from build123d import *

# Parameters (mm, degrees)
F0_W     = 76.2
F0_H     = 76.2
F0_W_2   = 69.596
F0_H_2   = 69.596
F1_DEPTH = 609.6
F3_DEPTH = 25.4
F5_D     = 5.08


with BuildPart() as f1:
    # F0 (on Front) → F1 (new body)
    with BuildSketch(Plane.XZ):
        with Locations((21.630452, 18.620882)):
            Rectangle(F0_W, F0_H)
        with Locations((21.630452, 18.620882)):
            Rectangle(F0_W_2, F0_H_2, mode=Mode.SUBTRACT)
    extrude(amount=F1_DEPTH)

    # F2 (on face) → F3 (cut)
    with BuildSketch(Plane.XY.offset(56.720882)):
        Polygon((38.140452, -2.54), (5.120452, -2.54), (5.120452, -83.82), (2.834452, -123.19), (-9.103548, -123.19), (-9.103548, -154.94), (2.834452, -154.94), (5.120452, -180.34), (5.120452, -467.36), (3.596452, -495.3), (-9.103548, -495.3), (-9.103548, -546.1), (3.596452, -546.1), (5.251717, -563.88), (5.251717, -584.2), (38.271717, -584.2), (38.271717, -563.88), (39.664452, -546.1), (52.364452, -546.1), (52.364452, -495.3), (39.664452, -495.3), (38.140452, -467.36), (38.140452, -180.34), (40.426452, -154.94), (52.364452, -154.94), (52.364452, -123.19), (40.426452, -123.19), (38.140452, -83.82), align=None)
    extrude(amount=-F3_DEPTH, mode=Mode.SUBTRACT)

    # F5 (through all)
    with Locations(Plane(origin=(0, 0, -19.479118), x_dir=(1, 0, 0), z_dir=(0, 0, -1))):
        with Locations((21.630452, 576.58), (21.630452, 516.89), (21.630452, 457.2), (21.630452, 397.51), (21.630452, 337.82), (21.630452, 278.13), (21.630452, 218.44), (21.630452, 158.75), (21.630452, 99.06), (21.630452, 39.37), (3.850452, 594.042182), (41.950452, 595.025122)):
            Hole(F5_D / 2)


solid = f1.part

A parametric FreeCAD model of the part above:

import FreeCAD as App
import Part
import Sketcher
Q = App.Units.Quantity

doc = App.newDocument("Part")
body = doc.addObject("PartDesign::Body", "Body")

# Sketch on XZ plane
sketch1 = doc.addObject("Sketcher::SketchObject", "Sketch")
body.addObject(sketch1)
sketch1.AttachmentSupport = (doc.XZ_Plane, [""])
sketch1.MapMode = "FlatFace"
sketch1.addGeometry([
    Part.LineSegment(App.Vector(-16, 57, 0), App.Vector(-16, -19, 0)),  # 0
    Part.LineSegment(App.Vector(-16, -19, 0), App.Vector(60, -19, 0)),  # 1
    Part.LineSegment(App.Vector(60, -19, 0), App.Vector(60, 57, 0)),  # 2
    Part.LineSegment(App.Vector(60, 57, 0), App.Vector(-16, 57, 0)),  # 3
    Part.LineSegment(App.Vector(56, -16, 0), App.Vector(-13, -16, 0)),  # 4
    Part.LineSegment(App.Vector(-13, -16, 0), App.Vector(-13, 53, 0)),  # 5
    Part.LineSegment(App.Vector(-13, 53, 0), App.Vector(56, 53, 0)),  # 6
    Part.LineSegment(App.Vector(56, 53, 0), App.Vector(56, -16, 0)),  # 7
], False)
sketch1.addConstraint([
    Sketcher.Constraint("Coincident", 0, 2, 1, 1),
    Sketcher.Constraint("Coincident", 1, 2, 2, 1),
    Sketcher.Constraint("Coincident", 2, 2, 3, 1),
    Sketcher.Constraint("Coincident", 3, 2, 0, 1),
    Sketcher.Constraint("Coincident", 4, 2, 5, 1),
    Sketcher.Constraint("Coincident", 5, 2, 6, 1),
    Sketcher.Constraint("Coincident", 6, 2, 7, 1),
    Sketcher.Constraint("Coincident", 7, 2, 4, 1),
    Sketcher.Constraint("Vertical", 0),
    Sketcher.Constraint("Horizontal", 1),
    Sketcher.Constraint("Vertical", 2),
    Sketcher.Constraint("Horizontal", 3),
    Sketcher.Constraint("Horizontal", 4),
    Sketcher.Constraint("Vertical", 5),
    Sketcher.Constraint("Horizontal", 6),
    Sketcher.Constraint("Vertical", 7),
    Sketcher.Constraint("Equal", 3, 0),
    Sketcher.Constraint("Equal", 6, 5),
    Sketcher.Constraint("DistanceX", 1, 1, 1, 2, Q("3 in")),
    Sketcher.Constraint("DistanceX", 4, 2, 4, 1, Q("2.74 in")),
    Sketcher.Constraint("DistanceX", 0, 2, 4, 2, Q("0.13 in")),
    Sketcher.Constraint("DistanceY", 0, 2, 4, 2, Q("0.13 in")),
    Sketcher.Constraint("DistanceY", 4, 2, -1, 1, Q("16.177118 mm")),
    Sketcher.Constraint("DistanceX", 0, 2, -1, 1, Q("16.469548 mm")),
])
pad1 = doc.addObject("PartDesign::Pad", "Pad")
body.addObject(pad1)
pad1.Profile = sketch1
pad1.Length = Q("24 in")

# Sketch on XY plane
sketch2 = doc.addObject("Sketcher::SketchObject", "Sketch001")
body.addObject(sketch2)
sketch2.AttachmentSupport = (doc.XY_Plane, [""])
sketch2.MapMode = "FlatFace"
sketch2.AttachmentOffset = App.Placement(App.Vector(0, 0, 56.720882), App.Rotation())
sketch2.addGeometry([
    Part.LineSegment(App.Vector(38, -3, 0), App.Vector(5, -3, 0)),  # 0
    Part.LineSegment(App.Vector(5, -3, 0), App.Vector(5, -84, 0)),  # 1
    Part.LineSegment(App.Vector(5, -84, 0), App.Vector(3, -123, 0)),  # 2
    Part.LineSegment(App.Vector(3, -123, 0), App.Vector(-9, -123, 0)),  # 3
    Part.LineSegment(App.Vector(-9, -123, 0), App.Vector(-9, -155, 0)),  # 4
    Part.LineSegment(App.Vector(-9, -155, 0), App.Vector(3, -155, 0)),  # 5
    Part.LineSegment(App.Vector(3, -155, 0), App.Vector(5, -180, 0)),  # 6
    Part.LineSegment(App.Vector(5, -180, 0), App.Vector(5, -467, 0)),  # 7
    Part.LineSegment(App.Vector(5, -467, 0), App.Vector(4, -495, 0)),  # 8
    Part.LineSegment(App.Vector(4, -495, 0), App.Vector(-9, -495, 0)),  # 9
    Part.LineSegment(App.Vector(-9, -495, 0), App.Vector(-9, -546, 0)),  # 10
    Part.LineSegment(App.Vector(-9, -546, 0), App.Vector(4, -546, 0)),  # 11
    Part.LineSegment(App.Vector(4, -546, 0), App.Vector(5, -564, 0)),  # 12
    Part.LineSegment(App.Vector(5, -564, 0), App.Vector(5, -584, 0)),  # 13
    Part.LineSegment(App.Vector(5, -584, 0), App.Vector(38, -584, 0)),  # 14
    Part.LineSegment(App.Vector(38, -584, 0), App.Vector(38, -564, 0)),  # 15
    Part.LineSegment(App.Vector(38, -564, 0), App.Vector(40, -546, 0)),  # 16
    Part.LineSegment(App.Vector(40, -546, 0), App.Vector(52, -546, 0)),  # 17
    Part.LineSegment(App.Vector(52, -546, 0), App.Vector(52, -495, 0)),  # 18
    Part.LineSegment(App.Vector(52, -495, 0), App.Vector(40, -495, 0)),  # 19
    Part.LineSegment(App.Vector(40, -495, 0), App.Vector(38, -467, 0)),  # 20
    Part.LineSegment(App.Vector(38, -467, 0), App.Vector(38, -180, 0)),  # 21
    Part.LineSegment(App.Vector(38, -180, 0), App.Vector(40, -155, 0)),  # 22
    Part.LineSegment(App.Vector(40, -155, 0), App.Vector(52, -155, 0)),  # 23
    Part.LineSegment(App.Vector(52, -155, 0), App.Vector(52, -123, 0)),  # 24
    Part.LineSegment(App.Vector(52, -123, 0), App.Vector(40, -123, 0)),  # 25
    Part.LineSegment(App.Vector(40, -123, 0), App.Vector(38, -84, 0)),  # 26
    Part.LineSegment(App.Vector(38, -84, 0), App.Vector(38, -3, 0)),  # 27
], False)
sketch2.addConstraint([
    Sketcher.Constraint("Coincident", 0, 2, 1, 1),
    Sketcher.Constraint("Coincident", 1, 2, 2, 1),
    Sketcher.Constraint("Coincident", 2, 2, 3, 1),
    Sketcher.Constraint("Coincident", 3, 2, 4, 1),
    Sketcher.Constraint("Coincident", 4, 2, 5, 1),
    Sketcher.Constraint("Coincident", 5, 2, 6, 1),
    Sketcher.Constraint("Coincident", 6, 2, 7, 1),
    Sketcher.Constraint("Coincident", 7, 2, 8, 1),
    Sketcher.Constraint("Coincident", 8, 2, 9, 1),
    Sketcher.Constraint("Coincident", 9, 2, 10, 1),
    Sketcher.Constraint("Coincident", 10, 2, 11, 1),
    Sketcher.Constraint("Coincident", 11, 2, 12, 1),
    Sketcher.Constraint("Coincident", 12, 2, 13, 1),
    Sketcher.Constraint("Coincident", 13, 2, 14, 1),
    Sketcher.Constraint("Coincident", 14, 2, 15, 1),
    Sketcher.Constraint("Coincident", 15, 2, 16, 1),
    Sketcher.Constraint("Coincident", 16, 2, 17, 1),
    Sketcher.Constraint("Coincident", 17, 2, 18, 1),
    Sketcher.Constraint("Coincident", 18, 2, 19, 1),
    Sketcher.Constraint("Coincident", 19, 2, 20, 1),
    Sketcher.Constraint("Coincident", 20, 2, 21, 1),
    Sketcher.Constraint("Coincident", 21, 2, 22, 1),
    Sketcher.Constraint("Coincident", 22, 2, 23, 1),
    Sketcher.Constraint("Coincident", 23, 2, 24, 1),
    Sketcher.Constraint("Coincident", 24, 2, 25, 1),
    Sketcher.Constraint("Coincident", 25, 2, 26, 1),
    Sketcher.Constraint("Coincident", 26, 2, 27, 1),
    Sketcher.Constraint("Coincident", 27, 2, 0, 1),
    Sketcher.Constraint("Horizontal", 0),
    Sketcher.Constraint("Vertical", 1),
    Sketcher.Constraint("Horizontal", 3),
    Sketcher.Constraint("Vertical", 4),
    Sketcher.Constraint("Horizontal", 5),
    Sketcher.Constraint("Vertical", 7),
    Sketcher.Constraint("Horizontal", 9),
    Sketcher.Constraint("Vertical", 10),
    Sketcher.Constraint("Horizontal", 11),
    Sketcher.Constraint("Vertical", 13),
    Sketcher.Constraint("Horizontal", 14),
    Sketcher.Constraint("Vertical", 15),
    Sketcher.Constraint("Horizontal", 17),
    Sketcher.Constraint("Vertical", 18),
    Sketcher.Constraint("Horizontal", 19),
    Sketcher.Constraint("Vertical", 21),
    Sketcher.Constraint("Horizontal", 23),
    Sketcher.Constraint("Vertical", 24),
    Sketcher.Constraint("Horizontal", 25),
    Sketcher.Constraint("Vertical", 27),
    Sketcher.Constraint("Horizontal", 12, 2, 15, 2),
    Sketcher.Constraint("Horizontal", 11, 2, 16, 2),
    Sketcher.Constraint("Horizontal", 9, 2, 18, 2),
    Sketcher.Constraint("Horizontal", 7, 2, 20, 2),
    Sketcher.Constraint("Horizontal", 6, 2, 21, 2),
    Sketcher.Constraint("Horizontal", 5, 2, 22, 2),
    Sketcher.Constraint("Horizontal", 3, 2, 24, 2),
    Sketcher.Constraint("Horizontal", 1, 2, 26, 2),
    Sketcher.Constraint("Vertical", 2, 2, 5, 2),
    Sketcher.Constraint("Vertical", 1, 2, 6, 2),
    Sketcher.Constraint("Vertical", 4, 2, 9, 2),
    Sketcher.Constraint("Vertical", 8, 2, 11, 2),
    Sketcher.Constraint("Vertical", 16, 2, 19, 2),
    Sketcher.Constraint("Vertical", 18, 2, 23, 2),
    Sketcher.Constraint("Vertical", 22, 2, 25, 2),
    Sketcher.Constraint("Vertical", 21, 2, 26, 2),
    Sketcher.Constraint("Equal", 0, 14),
    Sketcher.Constraint("Equal", 11, 17),
    Sketcher.Constraint("Equal", 5, 23),
    Sketcher.Constraint("Equal", 8, 20),
    Sketcher.Constraint("DistanceY", 10, 2, 10, 1, Q("2 in")),
    Sketcher.Constraint("DistanceX", 0, 2, 0, 1, Q("1.3 in")),
    Sketcher.Constraint("DistanceX", 9, 2, 9, 1, Q("0.5 in")),
    Sketcher.Constraint("DistanceY", 1, 2, 1, 1, Q("3.2 in")),
    Sketcher.Constraint("DistanceY", 7, 2, 7, 1, Q("11.3 in")),
    Sketcher.Constraint("DistanceY", 13, 2, 13, 1, Q("0.8 in")),
    Sketcher.Constraint("DistanceY", 13, 2, -1, 1, Q("23 in")),
    Sketcher.Constraint("DistanceY", 4, 2, 0, 2, Q("6 in")),
    Sketcher.Constraint("DistanceY", 6, 2, 5, 2, Q("1 in")),
    Sketcher.Constraint("DistanceX", 3, 2, 3, 1, Q("0.47 in")),
    Sketcher.Constraint("DistanceY", 4, 2, 4, 1, Q("1.25 in")),
    Sketcher.Constraint("DistanceY", 0, 2, -1, 1, Q("0.1 in")),
    Sketcher.Constraint("DistanceY", 8, 2, -1, 1, Q("19.5 in")),
    Sketcher.Constraint("DistanceX", 2, 2, 1, 2, Q("0.09 in")),
    Sketcher.Constraint("DistanceX", -1, 1, 16, 2, Q("39.664452 mm")),
    Sketcher.Constraint("Distance", 12, Q("17.856884 mm")),
])
pocket1 = doc.addObject("PartDesign::Pocket", "Pocket")
body.addObject(pocket1)
pocket1.Profile = sketch2
pocket1.Length = Q("1 in")

# Sketch on XY plane
sketch3 = doc.addObject("Sketcher::SketchObject", "Sketch002")
body.addObject(sketch3)
sketch3.AttachmentSupport = (doc.XY_Plane, [""])
sketch3.MapMode = "FlatFace"
sketch3.AttachmentOffset = App.Placement(App.Vector(0, 0, -19.479118), App.Rotation())
sketch3.addGeometry([
    Part.Circle(App.Vector(21.6, -576.6, 0), App.Vector(0, 0, 1), 2.5),  # 0
    Part.Circle(App.Vector(21.6, -516.9, 0), App.Vector(0, 0, 1), 2.5),  # 1
    Part.Circle(App.Vector(21.6, -457.2, 0), App.Vector(0, 0, 1), 2.5),  # 2
    Part.Circle(App.Vector(21.6, -397.5, 0), App.Vector(0, 0, 1), 2.5),  # 3
    Part.Circle(App.Vector(21.6, -337.8, 0), App.Vector(0, 0, 1), 2.5),  # 4
    Part.Circle(App.Vector(21.6, -278.1, 0), App.Vector(0, 0, 1), 2.5),  # 5
    Part.Circle(App.Vector(21.6, -218.4, 0), App.Vector(0, 0, 1), 2.5),  # 6
    Part.Circle(App.Vector(21.6, -158.8, 0), App.Vector(0, 0, 1), 2.5),  # 7
    Part.Circle(App.Vector(21.6, -99.1, 0), App.Vector(0, 0, 1), 2.5),  # 8
    Part.Circle(App.Vector(21.6, -39.4, 0), App.Vector(0, 0, 1), 2.5),  # 9
    Part.Circle(App.Vector(3.9, -594, 0), App.Vector(0, 0, 1), 2.5),  # 10
    Part.Circle(App.Vector(42, -595, 0), App.Vector(0, 0, 1), 2.5),  # 11
], False)
sketch3.addConstraint([
    Sketcher.Constraint("Equal", 0, 1),
    Sketcher.Constraint("Equal", 1, 2),
    Sketcher.Constraint("Equal", 2, 3),
    Sketcher.Constraint("Equal", 3, 4),
    Sketcher.Constraint("Equal", 4, 5),
    Sketcher.Constraint("Equal", 5, 6),
    Sketcher.Constraint("Equal", 6, 7),
    Sketcher.Constraint("Equal", 7, 8),
    Sketcher.Constraint("Equal", 8, 9),
    Sketcher.Constraint("Equal", 9, 10),
    Sketcher.Constraint("Equal", 10, 11),
    Sketcher.Constraint("Vertical", 0, 3, 1, 3),
    Sketcher.Constraint("Vertical", 1, 3, 2, 3),
    Sketcher.Constraint("Vertical", 2, 3, 3, 3),
    Sketcher.Constraint("Vertical", 3, 3, 4, 3),
    Sketcher.Constraint("Vertical", 4, 3, 5, 3),
    Sketcher.Constraint("Vertical", 5, 3, 6, 3),
    Sketcher.Constraint("Vertical", 6, 3, 7, 3),
    Sketcher.Constraint("Vertical", 7, 3, 8, 3),
    Sketcher.Constraint("Vertical", 8, 3, 9, 3),
    Sketcher.Constraint("Diameter", 0, Q("0.2 in")),
    Sketcher.Constraint("DistanceY", 2, 3, -1, 1, Q("18 in")),
    Sketcher.Constraint("DistanceY", 0, 3, -1, 1, Q("22.7 in")),
    Sketcher.Constraint("DistanceY", 4, 3, -1, 1, Q("13.3 in")),
    Sketcher.Constraint("DistanceY", 6, 3, -1, 1, Q("8.6 in")),
    Sketcher.Constraint("DistanceY", 8, 3, -1, 1, Q("3.9 in")),
    Sketcher.Constraint("DistanceY", 1, 3, 3, 3, Q("4.7 in")),
    Sketcher.Constraint("DistanceY", 3, 3, 5, 3, Q("4.7 in")),
    Sketcher.Constraint("DistanceY", 5, 3, 7, 3, Q("4.7 in")),
    Sketcher.Constraint("DistanceY", 7, 3, 9, 3, Q("4.7 in")),
    Sketcher.Constraint("DistanceX", 10, 3, 0, 3, Q("0.7 in")),
    Sketcher.Constraint("DistanceX", 0, 3, 11, 3, Q("0.8 in")),
    Sketcher.Constraint("DistanceY", 1, 3, -1, 1, Q("20.35 in")),
    Sketcher.Constraint("DistanceX", -1, 1, 0, 3, Q("21.630452 mm")),
    Sketcher.Constraint("DistanceY", 10, 3, -1, 1, Q("594.042182 mm")),
    Sketcher.Constraint("DistanceY", 11, 3, -1, 1, Q("595.025122 mm")),
])
doc.recompute()
hole = doc.addObject("PartDesign::Hole", "Hole")
body.addObject(hole)
hole.Profile = sketch3
hole.ThreadType = "None"
hole.Diameter = Q("0.2 in")
hole.DepthType = "ThroughAll"
hole.Reversed = True

doc.recompute()
